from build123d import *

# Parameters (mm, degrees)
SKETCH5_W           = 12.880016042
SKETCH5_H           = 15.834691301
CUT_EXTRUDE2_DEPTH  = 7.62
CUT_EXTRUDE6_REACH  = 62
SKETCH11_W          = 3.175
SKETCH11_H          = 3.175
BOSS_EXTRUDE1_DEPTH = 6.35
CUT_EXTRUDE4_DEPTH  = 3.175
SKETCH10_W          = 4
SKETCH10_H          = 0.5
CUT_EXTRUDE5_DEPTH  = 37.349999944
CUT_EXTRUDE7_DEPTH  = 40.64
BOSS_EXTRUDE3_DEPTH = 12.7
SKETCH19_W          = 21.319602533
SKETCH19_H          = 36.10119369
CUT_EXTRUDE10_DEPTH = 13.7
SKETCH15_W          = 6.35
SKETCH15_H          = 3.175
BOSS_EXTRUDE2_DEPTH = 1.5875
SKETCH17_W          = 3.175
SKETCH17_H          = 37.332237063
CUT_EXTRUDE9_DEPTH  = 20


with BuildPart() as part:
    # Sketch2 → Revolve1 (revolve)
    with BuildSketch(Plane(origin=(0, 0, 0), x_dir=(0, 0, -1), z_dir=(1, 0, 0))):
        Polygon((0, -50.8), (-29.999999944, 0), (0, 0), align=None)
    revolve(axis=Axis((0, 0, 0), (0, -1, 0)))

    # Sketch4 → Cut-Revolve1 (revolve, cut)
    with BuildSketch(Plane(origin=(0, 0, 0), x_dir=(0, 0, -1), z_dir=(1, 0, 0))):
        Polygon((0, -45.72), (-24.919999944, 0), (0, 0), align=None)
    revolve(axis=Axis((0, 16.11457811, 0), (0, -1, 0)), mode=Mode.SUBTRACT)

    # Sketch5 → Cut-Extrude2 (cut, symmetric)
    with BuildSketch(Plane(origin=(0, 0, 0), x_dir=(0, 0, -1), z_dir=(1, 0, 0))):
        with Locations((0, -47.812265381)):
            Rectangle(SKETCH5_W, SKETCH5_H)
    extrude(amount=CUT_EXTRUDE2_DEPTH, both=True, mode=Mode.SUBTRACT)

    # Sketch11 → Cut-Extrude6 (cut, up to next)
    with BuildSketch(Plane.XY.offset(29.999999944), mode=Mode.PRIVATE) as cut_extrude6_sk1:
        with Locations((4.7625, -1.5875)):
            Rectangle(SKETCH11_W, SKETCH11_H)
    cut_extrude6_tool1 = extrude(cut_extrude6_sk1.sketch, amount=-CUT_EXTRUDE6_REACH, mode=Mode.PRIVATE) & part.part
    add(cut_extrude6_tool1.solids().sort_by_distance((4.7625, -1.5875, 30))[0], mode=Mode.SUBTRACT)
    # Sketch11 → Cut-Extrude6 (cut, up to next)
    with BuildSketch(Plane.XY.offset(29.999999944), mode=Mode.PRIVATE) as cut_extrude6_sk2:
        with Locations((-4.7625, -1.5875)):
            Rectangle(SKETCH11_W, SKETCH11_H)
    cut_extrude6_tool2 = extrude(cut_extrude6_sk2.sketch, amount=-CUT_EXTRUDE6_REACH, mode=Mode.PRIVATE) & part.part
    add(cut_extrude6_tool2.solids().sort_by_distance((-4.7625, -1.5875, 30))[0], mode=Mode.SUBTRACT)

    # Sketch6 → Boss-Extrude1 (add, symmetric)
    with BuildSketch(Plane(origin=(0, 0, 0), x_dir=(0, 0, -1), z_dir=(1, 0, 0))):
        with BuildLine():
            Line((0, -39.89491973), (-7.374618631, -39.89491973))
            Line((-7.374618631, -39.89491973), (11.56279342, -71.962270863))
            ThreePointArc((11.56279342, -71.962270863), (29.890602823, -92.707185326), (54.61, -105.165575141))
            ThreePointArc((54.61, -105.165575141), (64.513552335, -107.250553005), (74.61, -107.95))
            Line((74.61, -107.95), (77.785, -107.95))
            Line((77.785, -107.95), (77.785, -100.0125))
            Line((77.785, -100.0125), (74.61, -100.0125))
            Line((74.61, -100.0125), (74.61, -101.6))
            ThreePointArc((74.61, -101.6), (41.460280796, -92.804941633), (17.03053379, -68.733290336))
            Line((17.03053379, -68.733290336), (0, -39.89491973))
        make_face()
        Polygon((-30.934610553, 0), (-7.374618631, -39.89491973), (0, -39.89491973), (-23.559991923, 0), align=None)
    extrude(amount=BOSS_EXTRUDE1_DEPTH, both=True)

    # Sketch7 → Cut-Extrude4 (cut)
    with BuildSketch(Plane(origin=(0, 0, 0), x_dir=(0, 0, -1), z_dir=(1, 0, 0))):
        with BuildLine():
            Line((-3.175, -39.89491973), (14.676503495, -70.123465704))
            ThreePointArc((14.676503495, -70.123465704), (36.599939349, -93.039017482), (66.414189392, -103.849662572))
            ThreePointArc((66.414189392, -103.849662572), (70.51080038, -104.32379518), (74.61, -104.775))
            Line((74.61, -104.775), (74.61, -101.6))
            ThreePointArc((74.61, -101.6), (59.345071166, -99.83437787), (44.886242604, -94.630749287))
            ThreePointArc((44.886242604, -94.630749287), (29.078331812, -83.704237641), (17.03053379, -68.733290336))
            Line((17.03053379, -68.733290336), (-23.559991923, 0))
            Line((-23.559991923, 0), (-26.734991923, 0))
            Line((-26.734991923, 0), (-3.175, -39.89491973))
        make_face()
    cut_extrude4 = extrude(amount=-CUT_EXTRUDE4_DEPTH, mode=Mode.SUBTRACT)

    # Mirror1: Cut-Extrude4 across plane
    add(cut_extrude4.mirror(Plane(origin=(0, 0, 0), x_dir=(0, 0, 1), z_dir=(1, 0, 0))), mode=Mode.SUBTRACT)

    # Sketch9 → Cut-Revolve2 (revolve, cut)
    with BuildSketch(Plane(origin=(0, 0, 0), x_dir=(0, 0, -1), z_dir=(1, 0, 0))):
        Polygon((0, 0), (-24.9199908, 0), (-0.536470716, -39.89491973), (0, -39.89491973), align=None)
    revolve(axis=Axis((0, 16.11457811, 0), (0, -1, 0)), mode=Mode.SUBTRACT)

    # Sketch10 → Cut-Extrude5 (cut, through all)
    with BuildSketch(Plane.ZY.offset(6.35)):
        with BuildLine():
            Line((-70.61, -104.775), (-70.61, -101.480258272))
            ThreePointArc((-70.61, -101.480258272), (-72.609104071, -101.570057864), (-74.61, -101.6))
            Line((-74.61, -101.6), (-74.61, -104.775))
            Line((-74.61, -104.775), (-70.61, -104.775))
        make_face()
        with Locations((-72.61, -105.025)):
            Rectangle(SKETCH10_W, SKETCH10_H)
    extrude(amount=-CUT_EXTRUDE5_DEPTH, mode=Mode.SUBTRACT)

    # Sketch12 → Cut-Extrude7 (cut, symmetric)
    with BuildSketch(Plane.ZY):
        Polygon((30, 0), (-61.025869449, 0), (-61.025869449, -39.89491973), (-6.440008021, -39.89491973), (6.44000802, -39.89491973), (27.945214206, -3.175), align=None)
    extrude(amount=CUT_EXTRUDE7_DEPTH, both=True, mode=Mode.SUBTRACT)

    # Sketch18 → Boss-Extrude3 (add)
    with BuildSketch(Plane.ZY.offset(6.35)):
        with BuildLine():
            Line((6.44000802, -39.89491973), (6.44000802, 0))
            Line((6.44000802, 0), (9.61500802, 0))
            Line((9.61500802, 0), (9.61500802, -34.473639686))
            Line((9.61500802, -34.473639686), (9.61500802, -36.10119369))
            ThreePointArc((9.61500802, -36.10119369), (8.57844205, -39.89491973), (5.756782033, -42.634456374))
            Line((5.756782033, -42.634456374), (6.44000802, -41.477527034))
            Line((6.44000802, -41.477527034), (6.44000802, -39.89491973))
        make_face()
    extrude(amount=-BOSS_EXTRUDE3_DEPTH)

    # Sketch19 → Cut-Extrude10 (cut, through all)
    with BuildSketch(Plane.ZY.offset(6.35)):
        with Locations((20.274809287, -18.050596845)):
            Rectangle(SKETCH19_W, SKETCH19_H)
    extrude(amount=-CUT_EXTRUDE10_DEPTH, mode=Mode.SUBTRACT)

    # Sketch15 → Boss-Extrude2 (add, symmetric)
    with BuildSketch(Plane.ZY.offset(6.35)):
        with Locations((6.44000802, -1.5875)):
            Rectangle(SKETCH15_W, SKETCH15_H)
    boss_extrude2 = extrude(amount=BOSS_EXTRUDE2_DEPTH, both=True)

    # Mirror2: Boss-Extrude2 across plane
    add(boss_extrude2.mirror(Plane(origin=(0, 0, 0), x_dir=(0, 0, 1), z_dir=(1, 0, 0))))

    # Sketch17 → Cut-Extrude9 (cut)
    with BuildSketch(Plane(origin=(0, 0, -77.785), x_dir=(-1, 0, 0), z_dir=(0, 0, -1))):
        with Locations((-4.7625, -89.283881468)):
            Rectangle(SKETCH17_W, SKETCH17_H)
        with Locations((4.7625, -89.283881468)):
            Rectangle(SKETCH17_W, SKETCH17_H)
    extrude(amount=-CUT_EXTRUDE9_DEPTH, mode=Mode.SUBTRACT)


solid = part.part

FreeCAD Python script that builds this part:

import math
import FreeCAD as App
import Part
import Sketcher

V = App.Vector
Q = App.Units.Quantity


def add_polygon(sketch, points):
    """Adds a closed chain of lines whose ends are joined by coincident constraints."""
    first, n = sketch.GeometryCount, len(points)
    for a, b in zip(points, points[1:] + points[:1]):
        sketch.addGeometry(Part.LineSegment(App.Vector(*a, 0), App.Vector(*b, 0)), False)
    for i in range(n):
        sketch.addConstraint(Sketcher.Constraint("Coincident", first + i, 2, first + (i + 1) % n, 1))

doc = App.newDocument("Part")
params = doc.addObject("Spreadsheet::Sheet", "Params")
for row, (alias, value) in enumerate([
    ("sketch1_width", "2 in"),
    ("revolution_angle", "360 deg"),
    ("sketch2_width", "1.8 in"),
    ("groove_angle", "360 deg"),
    ("pocket1_length", "0.6 in"),
    ("sketch4_width", "0.125 in"),
    ("pocket2_length", "7.69691 mm"),
    ("sketch5_width", "0.125 in"),
    ("pocket3_length", "7.69691 mm"),
    ("sketch6_width", "0.3125 in"),
    ("sketch6_width2", "0.0625 in"),
    ("sketch6_height", "0.125 in"),
    ("pad1_length", "0.5 in"),
    ("sketch7_width", "0.125 in"),
    ("sketch7_height", "0.125 in"),
    ("pocket4_length", "0.125 in"),
    ("groove2_angle", "360 deg"),
    ("pocket6_length", "3.2 in"),
    ("sketch11_height", "0.125 in"),
    ("pad2_length", "0.5 in"),
    ("sketch13_height", "0.25 in"),
    ("sketch13_width", "0.125 in"),
    ("pad3_length", "0.125 in"),
    ("sketch14_width", "0.125 in"),
    ("pocket8_length", "20 mm"),
], start=1):
    params.set(f"A{row}", alias)
    params.set(f"B{row}", "=" + value)
    params.setAlias(f"B{row}", alias)

body = doc.addObject("PartDesign::Body", "Body")

# Sketch on YZ plane
sketch1 = body.newObject("Sketcher::SketchObject", "Sketch")
sketch1.AttachmentSupport = (doc.getObject("YZ_Plane"), [""])
sketch1.MapMode = "FlatFace"
add_polygon(sketch1, [(0, 30), (-50.8, 0), (0, 0)])  # lines 0-2
sketch1.addConstraint(Sketcher.Constraint("Horizontal", 1))
sketch1.addConstraint(Sketcher.Constraint("Vertical", 2))
sketch1.addConstraint(Sketcher.Constraint("Coincident", 1, 2, -1, 1))
sketch1.addConstraint(Sketcher.Constraint("DistanceX", 1, 1, 1, 2, Q("2 in")))
sketch1.addConstraint(Sketcher.Constraint("DistanceY", 2, 1, 2, 2, 30.0))
sketch1.setExpression("Constraints[6]", "Params.sketch1_width")
revolution = body.newObject("PartDesign::Revolution", "Revolution")
revolution.Profile = sketch1
revolution.ReferenceAxis = (sketch1, ["H_Axis"])
revolution.setExpression("Angle", "Params.revolution_angle")

# Sketch on YZ plane
sketch2 = body.newObject("Sketcher::SketchObject", "Sketch001")
sketch2.AttachmentSupport = (doc.getObject("YZ_Plane"), [""])
sketch2.MapMode = "FlatFace"
add_polygon(sketch2, [(0, 24.92), (-45.72, 0), (0, 0)])  # lines 0-2
sketch2.addConstraint(Sketcher.Constraint("Horizontal", 1))
sketch2.addConstraint(Sketcher.Constraint("Vertical", 2))
sketch2.addConstraint(Sketcher.Constraint("Coincident", 1, 2, -1, 1))
sketch2.addConstraint(Sketcher.Constraint("DistanceX", 1, 1, 1, 2, Q("1.8 in")))
sketch2.addConstraint(Sketcher.Constraint("DistanceY", 2, 1, 2, 2, 24.92))
sketch2.setExpression("Constraints[6]", "Params.sketch2_width")
groove = body.newObject("PartDesign::Groove", "Groove")
groove.Profile = sketch2
groove.ReferenceAxis = (sketch2, ["H_Axis"])
groove.setExpression("Angle", "Params.groove_angle")

# Sketch on YZ plane
sketch3 = body.newObject("Sketcher::SketchObject", "Sketch002")
sketch3.AttachmentSupport = (doc.getObject("YZ_Plane"), [""])
sketch3.MapMode = "FlatFace"
add_polygon(sketch3, [(-39.89492, 6.440008), (-55.729611, 6.440008), (-55.729611, -6.440008), (-39.89492, -6.440008)])  # lines 0-3
sketch3.addConstraint(Sketcher.Constraint("Horizontal", 0))
sketch3.addConstraint(Sketcher.Constraint("Vertical", 1))
sketch3.addConstraint(Sketcher.Constraint("Horizontal", 2))
sketch3.addConstraint(Sketcher.Constraint("Vertical", 3))
sketch3.addConstraint(Sketcher.Constraint("DistanceX", 0, 2, 0, 1, 15.834691))
sketch3.addConstraint(Sketcher.Constraint("DistanceY", 1, 2, 1, 1, 12.880016))
sketch3.addConstraint(Sketcher.Constraint("DistanceX", 0, 2, -1, 1, 55.729611))
sketch3.addConstraint(Sketcher.Constraint("DistanceY", -1, 1, 0, 2, 6.440008))
pocket1 = body.newObject("PartDesign::Pocket", "Pocket")
pocket1.Profile = sketch3
pocket1.setExpression("Length", "Params.pocket1_length")
pocket1.Midplane = True

# Sketch on XY plane
sketch4 = body.newObject("Sketcher::SketchObject", "Sketch003")
sketch4.AttachmentSupport = (doc.getObject("XY_Plane"), [""])
sketch4.MapMode = "FlatFace"
sketch4.AttachmentOffset = App.Placement(V(0, 0, 30), App.Rotation())
add_polygon(sketch4, [(3.175, 0), (3.175, -3.175), (6.35, -3.175), (6.35, 0)])  # lines 0-3
sketch4.addConstraint(Sketcher.Constraint("Vertical", 0))
sketch4.addConstraint(Sketcher.Constraint("Horizontal", 1))
sketch4.addConstraint(Sketcher.Constraint("Vertical", 2))
sketch4.addConstraint(Sketcher.Constraint("Horizontal", 3))
sketch4.addConstraint(Sketcher.Constraint("PointOnObject", 2, 2, -1))
sketch4.addConstraint(Sketcher.Constraint("Equal", 3, 0))
sketch4.addConstraint(Sketcher.Constraint("DistanceX", 1, 1, 1, 2, Q("0.125 in")))
sketch4.addConstraint(Sketcher.Constraint("DistanceX", -1, 1, 1, 2, Q("0.25 in")))
sketch4.setExpression("Constraints[10]", "Params.sketch4_width")
pocket2 = body.newObject("PartDesign::Pocket", "Pocket001")
pocket2.Profile = sketch4
pocket2.setExpression("Length", "Params.pocket2_length")

# Sketch on XY plane
sketch5 = body.newObject("Sketcher::SketchObject", "Sketch004")
sketch5.AttachmentSupport = (doc.getObject("XY_Plane"), [""])
sketch5.MapMode = "FlatFace"
sketch5.AttachmentOffset = App.Placement(V(0, 0, 30), App.Rotation())
add_polygon(sketch5, [(-6.35, 0), (-6.35, -3.175), (-3.175, -3.175), (-3.175, 0)])  # lines 0-3
sketch5.addConstraint(Sketcher.Constraint("Vertical", 0))
sketch5.addConstraint(Sketcher.Constraint("Horizontal", 1))
sketch5.addConstraint(Sketcher.Constraint("Vertical", 2))
sketch5.addConstraint(Sketcher.Constraint("Horizontal", 3))
sketch5.addConstraint(Sketcher.Constraint("PointOnObject", 2, 2, -1))
sketch5.addConstraint(Sketcher.Constraint("Equal", 3, 0))
sketch5.addConstraint(Sketcher.Constraint("DistanceX", 1, 1, 1, 2, Q("0.125 in")))
sketch5.addConstraint(Sketcher.Constraint("DistanceX", 0, 2, -1, 1, Q("0.25 in")))
sketch5.setExpression("Constraints[10]", "Params.sketch5_width")
pocket3 = body.newObject("PartDesign::Pocket", "Pocket002")
pocket3.Profile = sketch5
pocket3.setExpression("Length", "Params.pocket3_length")

# Sketch on YZ plane
sketch6 = body.newObject("Sketcher::SketchObject", "Sketch005")
sketch6.AttachmentSupport = (doc.getObject("YZ_Plane"), [""])
sketch6.MapMode = "FlatFace"
sketch6.addGeometry(Part.LineSegment(V(-39.89492, 7.374619, 0), V(-71.962271, -11.562793, 0)), False)
sketch6.addGeometry(Part.ArcOfCircle(Part.Circle(V(-34.729669, -74.61, 0), V(0, 0, 1), 73.220331), math.radians(120.564025), math.radians(164.148312)), False)
sketch6.addGeometry(Part.ArcOfCircle(Part.Circle(V(-34.729669, -74.61, 0), V(0, 0, 1), 73.220331), math.radians(164.148312), math.radians(180)), False)
sketch6.addGeometry(Part.LineSegment(V(-107.95, -74.61, 0), V(-107.95, -77.785, 0)), False)
sketch6.addGeometry(Part.LineSegment(V(-107.95, -77.785, 0), V(-100.0125, -77.785, 0)), False)
sketch6.addGeometry(Part.LineSegment(V(-100.0125, -77.785, 0), V(-100.0125, -74.61, 0)), False)
sketch6.addGeometry(Part.LineSegment(V(-100.0125, -74.61, 0), V(-101.6, -74.61, 0)), False)
sketch6.addGeometry(Part.ArcOfCircle(Part.Circle(V(-34.729669, -74.61, 0), V(0, 0, 1), 66.870331), math.radians(120.564025), math.radians(180)), False)
sketch6.addGeometry(Part.LineSegment(V(-68.73329, -17.030534, 0), V(-39.89492, 0, 0)), False)
sketch6.addGeometry(Part.LineSegment(V(-39.89492, 0, 0), V(0, 23.559992, 0)), False)
sketch6.addGeometry(Part.LineSegment(V(0, 23.559992, 0), V(0, 30.934611, 0)), False)
sketch6.addGeometry(Part.LineSegment(V(0, 30.934611, 0), V(-39.89492, 7.374619, 0)), False)
sketch6.addConstraint(Sketcher.Constraint("Tangent", 0, 2, 1, 1))
sketch6.addConstraint(Sketcher.Constraint("Tangent", 1, 2, 2, 1))
sketch6.addConstraint(Sketcher.Constraint("Tangent", 2, 2, 3, 1))
sketch6.addConstraint(Sketcher.Constraint("Coincident", 3, 2, 4, 1))
sketch6.addConstraint(Sketcher.Constraint("Coincident", 4, 2, 5, 1))
sketch6.addConstraint(Sketcher.Constraint("Coincident", 5, 2, 6, 1))
sketch6.addConstraint(Sketcher.Constraint("Coincident", 6, 2, 7, 2))
sketch6.addConstraint(Sketcher.Constraint("Tangent", 7, 1, 8, 1))
sketch6.addConstraint(Sketcher.Constraint("Coincident", 8, 2, 9, 1))
sketch6.addConstraint(Sketcher.Constraint("Coincident", 9, 2, 10, 1))
sketch6.addConstraint(Sketcher.Constraint("Coincident", 10, 2, 11, 1))
sketch6.addConstraint(Sketcher.Constraint("Coincident", 11, 2, 0, 1))
sketch6.addConstraint(Sketcher.Constraint("Vertical", 3))
sketch6.addConstraint(Sketcher.Constraint("Horizontal", 4))
sketch6.addConstraint(Sketcher.Constraint("Vertical", 5))
sketch6.addConstraint(Sketcher.Constraint("Horizontal", 6))
sketch6.addConstraint(Sketcher.Constraint("Vertical", 10))
sketch6.addConstraint(Sketcher.Constraint("Coincident", 7, 3, 1, 3))
sketch6.addConstraint(Sketcher.Constraint("Equal", 1, 2))
sketch6.addConstraint(Sketcher.Constraint("PointOnObject", 8, 2, -1))
sketch6.addConstraint(Sketcher.Constraint("PointOnObject", 9, 2, -2))
sketch6.addConstraint(Sketcher.Constraint("Parallel", 0, 8))
sketch6.addConstraint(Sketcher.Constraint("Parallel", 8, 9))
sketch6.addConstraint(Sketcher.Constraint("Parallel", 9, 11))
sketch6.addConstraint(Sketcher.Constraint("Horizontal", 2, 2, 5, 2))
sketch6.addConstraint(Sketcher.Constraint("Vertical", 8, 2, 11, 2))
sketch6.addConstraint(Sketcher.Constraint("DistanceX", 6, 2, -1, 1, Q("4 in")))
sketch6.addConstraint(Sketcher.Constraint("DistanceX", 4, 1, 4, 2, Q("0.3125 in")))
sketch6.addConstraint(Sketcher.Constraint("DistanceX", 6, 2, 6, 1, Q("0.0625 in")))
sketch6.addConstraint(Sketcher.Constraint("DistanceY", 3, 2, 3, 1, Q("0.125 in")))
sketch6.addConstraint(Sketcher.Constraint("DistanceY", 1, 2, -1, 1, Q("2.15 in")))
sketch6.addConstraint(Sketcher.Constraint("Radius", 1, 73.220331))
sketch6.addConstraint(Sketcher.Constraint("DistanceY", 10, 1, 10, 2, 7.374619))
sketch6.addConstraint(Sketcher.Constraint("DistanceY", 1, 3, -1, 1, 74.61))
sketch6.setExpression("Constraints[27]", "Params.sketch6_width")
sketch6.setExpression("Constraints[28]", "Params.sketch6_width2")
sketch6.setExpression("Constraints[29]", "Params.sketch6_height")
pad1 = body.newObject("PartDesign::Pad", "Pad")
pad1.Profile = sketch6
pad1.setExpression("Length", "Params.pad1_length")
pad1.Midplane = True

# Sketch on YZ plane
sketch7 = body.newObject("Sketcher::SketchObject", "Sketch006")
sketch7.AttachmentSupport = (doc.getObject("YZ_Plane"), [""])
sketch7.MapMode = "FlatFace"
sketch7.addGeometry(Part.ArcOfCircle(Part.Circle(V(-34.729669, -74.61, 0), V(0, 0, 1), 69.604202), math.radians(120.564025), math.radians(173.237803)), False)
sketch7.addGeometry(Part.ArcOfCircle(Part.Circle(V(628.104441, -153.204666, 0), V(0, 0, 1), 737.081676), math.radians(173.237803), math.radians(173.878942)), False)
sketch7.addGeometry(Part.LineSegment(V(-104.775, -74.61, 0), V(-101.6, -74.61, 0)), False)
sketch7.addGeometry(Part.ArcOfCircle(Part.Circle(V(-34.729669, -74.61, 0), V(0, 0, 1), 66.870331), math.radians(153.608747), math.radians(180)), False)
sketch7.addGeometry(Part.ArcOfCircle(Part.Circle(V(-34.729669, -74.61, 0), V(0, 0, 1), 66.870331), math.radians(120.564025), math.radians(153.608747)), False)
sketch7.addGeometry(Part.LineSegment(V(-68.73329, -17.030534, 0), V(0, 23.559992, 0)), False)
sketch7.addGeometry(Part.LineSegment(V(0, 23.559992, 0), V(0, 26.734992, 0)), False)
sketch7.addGeometry(Part.LineSegment(V(0, 26.734992, 0), V(-70.123466, -14.676503, 0)), False)
sketch7.addConstraint(Sketcher.Constraint("Coincident", 0, 2, 1, 1))
sketch7.addConstraint(Sketcher.Constraint("Coincident", 1, 2, 2, 1))
sketch7.addConstraint(Sketcher.Constraint("Coincident", 2, 2, 3, 2))
sketch7.addConstraint(Sketcher.Constraint("Coincident", 3, 1, 4, 2))
sketch7.addConstraint(Sketcher.Constraint("Coincident", 4, 1, 5, 1))
sketch7.addConstraint(Sketcher.Constraint("Coincident", 5, 2, 6, 1))
sketch7.addConstraint(Sketcher.Constraint("Coincident", 6, 2, 7, 1))
sketch7.addConstraint(Sketcher.Constraint("Coincident", 7, 2, 0, 1))
sketch7.addConstraint(Sketcher.Constraint("Horizontal", 2))
sketch7.addConstraint(Sketcher.Constraint("Vertical", 6))
sketch7.addConstraint(Sketcher.Constraint("Coincident", 3, 3, 0, 3))
sketch7.addConstraint(Sketcher.Constraint("Coincident", 4, 3, 0, 3))
sketch7.addConstraint(Sketcher.Constraint("PointOnObject", 5, 2, -2))
sketch7.addConstraint(Sketcher.Constraint("DistanceX", 2, 2, -1, 1, Q("4 in")))
sketch7.addConstraint(Sketcher.Constraint("DistanceX", 2, 1, 2, 2, Q("0.125 in")))
sketch7.addConstraint(Sketcher.Constraint("DistanceY", 6, 1, 6, 2, Q("0.125 in")))
sketch7.addConstraint(Sketcher.Constraint("Radius", 0, 69.604202))
sketch7.addConstraint(Sketcher.Constraint("Radius", 3, 66.870331))
sketch7.addConstraint(Sketcher.Constraint("Radius", 1, 737.081676))
sketch7.addConstraint(Sketcher.Constraint("DistanceY", 0, 3, -1, 1, 74.61))
sketch7.addConstraint(Sketcher.Constraint("DistanceY", 2, 2, -1, 1, 74.61))
sketch7.addConstraint(Sketcher.Constraint("DistanceY", 0, 2, -1, 1, 66.414189))
sketch7.addConstraint(Sketcher.Constraint("DistanceX", 3, 1, -1, 1, 94.630749))
sketch7.addConstraint(Sketcher.Constraint("DistanceX", 4, 1, -1, 1, 68.73329))
sketch7.addConstraint(Sketcher.Constraint("DistanceY", -1, 1, 5, 2, 23.559992))
sketch7.addConstraint(Sketcher.Constraint("DistanceY", 4, 1, 7, 2, 2.35403))
sketch7.setExpression("Constraints[14]", "Params.sketch7_width")
sketch7.setExpression("Constraints[15]", "Params.sketch7_height")
pocket4 = body.newObject("PartDesign::Pocket", "Pocket003")
pocket4.Profile = sketch7
pocket4.setExpression("Length", "Params.pocket4_length")
doc.recompute()

mirrored = body.newObject("PartDesign::Mirrored", "Mirrored")
mirrored.Originals = [pocket4]
mirrored.MirrorPlane = (doc.getObject("YZ_Plane"), [""])
body.Tip = mirrored

# Sketch on YZ plane
sketch8 = body.newObject("Sketcher::SketchObject", "Sketch007")
sketch8.AttachmentSupport = (doc.getObject("YZ_Plane"), [""])
sketch8.MapMode = "FlatFace"
add_polygon(sketch8, [(0, 0), (0, 24.919991), (-39.89492, 0.536471), (-39.89492, 0)])  # lines 0-3
sketch8.addConstraint(Sketcher.Constraint("Vertical", 0))
sketch8.addConstraint(Sketcher.Constraint("Vertical", 2))
sketch8.addConstraint(Sketcher.Constraint("Horizontal", 3))
sketch8.addConstraint(Sketcher.Constraint("Coincident", 3, 2, -1, 1))
sketch8.addConstraint(Sketcher.Constraint("DistanceX", 3, 1, 3, 2, 39.89492))
sketch8.addConstraint(Sketcher.Constraint("DistanceY", 0, 1, 0, 2, 24.919991))
sketch8.addConstraint(Sketcher.Constraint("DistanceY", 2, 2, 2, 1, 0.536471))
groove2 = body.newObject("PartDesign::Groove", "Groove001")
groove2.Profile = sketch8
groove2.ReferenceAxis = (sketch8, ["H_Axis"])
groove2.setExpression("Angle", "Params.groove2_angle")

# Sketch on YZ plane
sketch9 = body.newObject("Sketcher::SketchObject", "Sketch008")
sketch9.AttachmentSupport = (doc.getObject("YZ_Plane"), [""])
sketch9.MapMode = "FlatFace"
sketch9.AttachmentOffset = App.Placement(V(0, 0, -0.25 * 25.4), App.Rotation())
sketch9.addGeometry(Part.ArcOfCircle(Part.Circle(V(-34.729667, -74.61, 0), V(0, 0, 1), 66.870333), math.radians(176.570676), math.radians(180)), False)
sketch9.addGeometry(Part.LineSegment(V(-101.6, -74.61, 0), V(-105.275, -74.61, 0)), False)
sketch9.addGeometry(Part.LineSegment(V(-105.275, -74.61, 0), V(-105.275, -70.61, 0)), False)
sketch9.addGeometry(Part.LineSegment(V(-105.275, -70.61, 0), V(-101.480258, -70.61, 0)), False)
sketch9.addConstraint(Sketcher.Constraint("Coincident", 0, 2, 1, 1))
sketch9.addConstraint(Sketcher.Constraint("Coincident", 1, 2, 2, 1))
sketch9.addConstraint(Sketcher.Constraint("Coincident", 2, 2, 3, 1))
sketch9.addConstraint(Sketcher.Constraint("Coincident", 3, 2, 0, 1))
sketch9.addConstraint(Sketcher.Constraint("Horizontal", 1))
sketch9.addConstraint(Sketcher.Constraint("Vertical", 2))
sketch9.addConstraint(Sketcher.Constraint("Horizontal", 3))
sketch9.addConstraint(Sketcher.Constraint("DistanceX", 0, 2, -1, 1, Q("4 in")))
sketch9.addConstraint(Sketcher.Constraint("DistanceX", 1, 2, 1, 1, 3.675))
sketch9.addConstraint(Sketcher.Constraint("DistanceY", 2, 1, 2, 2, 4.0))
sketch9.addConstraint(Sketcher.Constraint("Radius", 0, 66.870333))
sketch9.addConstraint(Sketcher.Constraint("DistanceX", 3, 1, 3, 2, 3.794742))
sketch9.addConstraint(Sketcher.Constraint("DistanceY", 0, 3, -1, 1, 74.61))
pocket5 = body.newObject("PartDesign::Pocket", "Pocket004")
pocket5.Profile = sketch9
pocket5.Type = "ThroughAll"
pocket5.Reversed = True

# Sketch on YZ plane
sketch10 = body.newObject("Sketcher::SketchObject", "Sketch009")
sketch10.AttachmentSupport = (doc.getObject("YZ_Plane"), [""])
sketch10.MapMode = "FlatFace"
add_polygon(sketch10, [(0, 30), (0, -61.025869), (-39.89492, -61.025869), (-39.89492, 6.440008), (-3.175, 27.945214)])  # lines 0-4
sketch10.addConstraint(Sketcher.Constraint("Vertical", 0))
sketch10.addConstraint(Sketcher.Constraint("Horizontal", 1))
sketch10.addConstraint(Sketcher.Constraint("Vertical", 2))
sketch10.addConstraint(Sketcher.Constraint("PointOnObject", 0, 2, -2))
sketch10.addConstraint(Sketcher.Constraint("Angle", 4, Q("32.91 deg")))
sketch10.addConstraint(Sketcher.Constraint("DistanceX", 3, 2, -1, 1, Q("0.125 in")))
sketch10.addConstraint(Sketcher.Constraint("DistanceX", 1, 2, 1, 1, 39.89492))
sketch10.addConstraint(Sketcher.Constraint("DistanceY", 0, 2, 0, 1, 91.025869))
sketch10.addConstraint(Sketcher.Constraint("DistanceY", -1, 1, 4, 2, 30.0))
sketch10.addConstraint(Sketcher.Constraint("DistanceY", 2, 1, 2, 2, 67.465877))
pocket6 = body.newObject("PartDesign::Pocket", "Pocket005")
pocket6.Profile = sketch10
pocket6.setExpression("Length", "Params.pocket6_length")
pocket6.Midplane = True

# Sketch on YZ plane
sketch11 = body.newObject("Sketcher::SketchObject", "Sketch010")
sketch11.AttachmentSupport = (doc.getObject("YZ_Plane"), [""])
sketch11.MapMode = "FlatFace"
sketch11.AttachmentOffset = App.Placement(V(0, 0, -0.25 * 25.4), App.Rotation())
sketch11.addGeometry(Part.LineSegment(V(0, 9.615008, 0), V(0, 6.440008, 0)), False)
sketch11.addGeometry(Part.LineSegment(V(0, 6.440008, 0), V(-41.477527, 6.440008, 0)), False)
sketch11.addGeometry(Part.LineSegment(V(-41.477527, 6.440008, 0), V(-42.634456, 5.756782, 0)), False)
sketch11.addGeometry(Part.ArcOfCircle(Part.Circle(V(-36.101194, 2.154399, 0), V(0, 0, 1), 7.460609), math.radians(90), math.radians(151.12805)), False)
sketch11.addGeometry(Part.LineSegment(V(-36.101194, 9.615008, 0), V(0, 9.615008, 0)), False)
sketch11.addConstraint(Sketcher.Constraint("Coincident", 0, 2, 1, 1))
sketch11.addConstraint(Sketcher.Constraint("Coincident", 1, 2, 2, 1))
sketch11.addConstraint(Sketcher.Constraint("Coincident", 2, 2, 3, 2))
sketch11.addConstraint(Sketcher.Constraint("Tangent", 3, 1, 4, 1))
sketch11.addConstraint(Sketcher.Constraint("Coincident", 4, 2, 0, 1))
sketch11.addConstraint(Sketcher.Constraint("Vertical", 0))
sketch11.addConstraint(Sketcher.Constraint("Horizontal", 1))
sketch11.addConstraint(Sketcher.Constraint("Horizontal", 4))
sketch11.addConstraint(Sketcher.Constraint("PointOnObject", 0, 2, -2))
sketch11.addConstraint(Sketcher.Constraint("DistanceY", 0, 2, 0, 1, Q("0.125 in")))
sketch11.addConstraint(Sketcher.Constraint("Radius", 3, 7.460609))
sketch11.addConstraint(Sketcher.Constraint("DistanceY", -1, 1, 3, 3, 2.154399))
sketch11.addConstraint(Sketcher.Constraint("Distance", 2, 1.343608))
sketch11.addConstraint(Sketcher.Constraint("DistanceX", 1, 2, 1, 1, 41.477527))
sketch11.addConstraint(Sketcher.Constraint("DistanceX", 4, 1, 4, 2, 36.101194))
sketch11.setExpression("Constraints[9]", "Params.sketch11_height")
pad2 = body.newObject("PartDesign::Pad", "Pad001")
pad2.Profile = sketch11
pad2.setExpression("Length", "Params.pad2_length")

# Sketch on YZ plane
sketch12 = body.newObject("Sketcher::SketchObject", "Sketch011")
sketch12.AttachmentSupport = (doc.getObject("YZ_Plane"), [""])
sketch12.MapMode = "FlatFace"
sketch12.AttachmentOffset = App.Placement(V(0, 0, -0.25 * 25.4), App.Rotation())
add_polygon(sketch12, [(0, 9.615008), (-36.101194, 9.615008), (-36.101194, 30.934611), (0, 30.934611)])  # lines 0-3
sketch12.addConstraint(Sketcher.Constraint("Horizontal", 0))
sketch12.addConstraint(Sketcher.Constraint("Vertical", 1))
sketch12.addConstraint(Sketcher.Constraint("Horizontal", 2))
sketch12.addConstraint(Sketcher.Constraint("Vertical", 3))
sketch12.addConstraint(Sketcher.Constraint("PointOnObject", 2, 2, -2))
sketch12.addConstraint(Sketcher.Constraint("DistanceX", 0, 2, 0, 1, 36.101194))
sketch12.addConstraint(Sketcher.Constraint("DistanceY", 1, 1, 1, 2, 21.319603))
sketch12.addConstraint(Sketcher.Constraint("DistanceY", -1, 1, 0, 2, 9.615008))
pocket7 = body.newObject("PartDesign::Pocket", "Pocket006")
pocket7.Profile = sketch12
pocket7.Type = "ThroughAll"
pocket7.Reversed = True

# Sketch on YZ plane
sketch13 = body.newObject("Sketcher::SketchObject", "Sketch012")
sketch13.AttachmentSupport = (doc.getObject("YZ_Plane"), [""])
sketch13.MapMode = "FlatFace"
sketch13.AttachmentOffset = App.Placement(V(0, 0, -0.25 * 25.4), App.Rotation())
add_polygon(sketch13, [(0, 3.265008), (-3.175, 3.265008), (-3.175, 9.615008), (0, 9.615008)])  # lines 0-3
sketch13.addConstraint(Sketcher.Constraint("Horizontal", 0))
sketch13.addConstraint(Sketcher.Constraint("Vertical", 1))
sketch13.addConstraint(Sketcher.Constraint("Horizontal", 2))
sketch13.addConstraint(Sketcher.Constraint("Vertical", 3))
sketch13.addConstraint(Sketcher.Constraint("PointOnObject", 2, 2, -2))
sketch13.addConstraint(Sketcher.Constraint("DistanceY", 1, 1, 1, 2, Q("0.25 in")))
sketch13.addConstraint(Sketcher.Constraint("DistanceX", 0, 2, 0, 1, Q("0.125 in")))
sketch13.addConstraint(Sketcher.Constraint("DistanceY", -1, 1, 0, 2, 3.265008))
sketch13.setExpression("Constraints[9]", "Params.sketch13_height")
sketch13.setExpression("Constraints[10]", "Params.sketch13_width")
pad3 = body.newObject("PartDesign::Pad", "Pad002")
pad3.Profile = sketch13
pad3.setExpression("Length", "Params.pad3_length")
pad3.Midplane = True
doc.recompute()

mirrored2 = body.newObject("PartDesign::Mirrored", "Mirrored001")
mirrored2.Originals = [pad3]
mirrored2.MirrorPlane = (doc.getObject("YZ_Plane"), [""])
body.Tip = mirrored2

# Sketch on XY plane
sketch14 = body.newObject("Sketcher::SketchObject", "Sketch013")
sketch14.AttachmentSupport = (doc.getObject("XY_Plane"), [""])
sketch14.MapMode = "FlatFace"
sketch14.AttachmentOffset = App.Placement(V(0, 0, -77.785), App.Rotation())
add_polygon(sketch14, [(6.35, -70.617763), (6.35, -107.95), (3.175, -107.95), (3.175, -70.617763)])  # lines 0-3
add_polygon(sketch14, [(-3.175, -70.617763), (-3.175, -107.95), (-6.35, -107.95), (-6.35, -70.617763)])  # lines 4-7
sketch14.addConstraint(Sketcher.Constraint("Vertical", 0))
sketch14.addConstraint(Sketcher.Constraint("Horizontal", 1))
sketch14.addConstraint(Sketcher.Constraint("Vertical", 2))
sketch14.addConstraint(Sketcher.Constraint("Horizontal", 3))
sketch14.addConstraint(Sketcher.Constraint("Vertical", 4))
sketch14.addConstraint(Sketcher.Constraint("Horizontal", 5))
sketch14.addConstraint(Sketcher.Constraint("Vertical", 6))
sketch14.addConstraint(Sketcher.Constraint("Horizontal", 7))
sketch14.addConstraint(Sketcher.Constraint("Symmetric", 1, 2, 4, 2, -2))
sketch14.addConstraint(Sketcher.Constraint("Symmetric", 3, 2, 6, 2, -2))
sketch14.addConstraint(Sketcher.Constraint("DistanceX", 5, 2, 0, 2, Q("0.5 in")))
sketch14.addConstraint(Sketcher.Constraint("DistanceX", 1, 2, 1, 1, Q("0.125 in")))
sketch14.addConstraint(Sketcher.Constraint("DistanceY", 0, 2, -1, 1, Q("4.25 in")))
sketch14.addConstraint(Sketcher.Constraint("DistanceY", 0, 2, 0, 1, 37.332237))
sketch14.setExpression("Constraints[19]", "Params.sketch14_width")
pocket8 = body.newObject("PartDesign::Pocket", "Pocket007")
pocket8.Profile = sketch14
pocket8.setExpression("Length", "Params.pocket8_length")
pocket8.Reversed = True

doc.recompute()
